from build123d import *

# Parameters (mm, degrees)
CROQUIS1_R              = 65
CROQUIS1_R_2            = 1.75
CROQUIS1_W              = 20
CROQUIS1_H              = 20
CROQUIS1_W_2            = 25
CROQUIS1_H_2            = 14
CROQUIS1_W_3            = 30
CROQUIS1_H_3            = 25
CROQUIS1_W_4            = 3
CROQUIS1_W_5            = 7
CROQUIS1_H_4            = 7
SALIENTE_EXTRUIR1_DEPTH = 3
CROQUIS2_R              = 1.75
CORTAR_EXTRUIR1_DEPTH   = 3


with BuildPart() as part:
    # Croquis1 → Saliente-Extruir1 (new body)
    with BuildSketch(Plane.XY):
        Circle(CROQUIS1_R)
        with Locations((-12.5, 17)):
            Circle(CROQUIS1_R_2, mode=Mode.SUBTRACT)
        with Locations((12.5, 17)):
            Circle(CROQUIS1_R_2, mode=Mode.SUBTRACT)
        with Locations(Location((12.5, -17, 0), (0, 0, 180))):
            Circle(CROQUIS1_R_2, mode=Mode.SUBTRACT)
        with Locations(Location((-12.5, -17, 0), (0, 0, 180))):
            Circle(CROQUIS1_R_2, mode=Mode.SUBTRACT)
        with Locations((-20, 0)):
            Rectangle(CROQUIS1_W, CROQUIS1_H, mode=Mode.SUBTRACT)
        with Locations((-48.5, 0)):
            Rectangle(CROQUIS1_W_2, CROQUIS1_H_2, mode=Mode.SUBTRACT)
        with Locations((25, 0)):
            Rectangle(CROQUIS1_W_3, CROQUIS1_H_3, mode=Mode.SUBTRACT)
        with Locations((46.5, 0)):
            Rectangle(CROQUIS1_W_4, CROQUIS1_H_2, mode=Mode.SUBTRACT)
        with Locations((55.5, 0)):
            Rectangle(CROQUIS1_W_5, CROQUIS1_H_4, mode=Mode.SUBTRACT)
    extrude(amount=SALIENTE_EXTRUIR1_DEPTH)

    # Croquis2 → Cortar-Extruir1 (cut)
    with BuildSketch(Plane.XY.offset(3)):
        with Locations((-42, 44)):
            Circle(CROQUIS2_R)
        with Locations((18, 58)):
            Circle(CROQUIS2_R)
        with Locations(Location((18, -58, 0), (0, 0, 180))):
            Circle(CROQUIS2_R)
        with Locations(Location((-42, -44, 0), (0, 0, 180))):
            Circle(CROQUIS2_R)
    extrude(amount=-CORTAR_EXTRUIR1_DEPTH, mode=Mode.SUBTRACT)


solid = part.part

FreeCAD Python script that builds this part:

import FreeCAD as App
import Part
import Sketcher

V = App.Vector


def add_polygon(sketch, points):
    """Adds a closed chain of lines whose ends are joined by coincident constraints."""
    first, n = sketch.GeometryCount, len(points)
    for a, b in zip(points, points[1:] + points[:1]):
        sketch.addGeometry(Part.LineSegment(App.Vector(*a, 0), App.Vector(*b, 0)), False)
    for i in range(n):
        sketch.addConstraint(Sketcher.Constraint("Coincident", first + i, 2, first + (i + 1) % n, 1))

doc = App.newDocument("Part")
params = doc.addObject("Spreadsheet::Sheet", "Params")
for row, (alias, value) in enumerate([
    ("sketch1_diameter", "130 mm"),
    ("sketch1_diameter2", "3.5 mm"),
    ("sketch1_width", "25 mm"),
    ("sketch1_width2", "20 mm"),
    ("sketch1_width3", "30 mm"),
    ("pad1_length", "3 mm"),
    ("sketch2_diameter", "3.5 mm"),
    ("pocket1_length", "3 mm"),
], start=1):
    params.set(f"A{row}", alias)
    params.set(f"B{row}", "=" + value)
    params.setAlias(f"B{row}", alias)

body = doc.addObject("PartDesign::Body", "Body")

sketch1 = doc.addObject("Sketcher::SketchObject", "Sketch")
body.addObject(sketch1)
sketch1.AttachmentSupport = (doc.XY_Plane, [""])
sketch1.MapMode = "FlatFace"
sketch1.addGeometry(Part.Circle(V(0, 0, 0), V(0, 0, 1), 65), False)
sketch1.addGeometry(Part.Circle(V(-12.5, -17, 0), V(0, 0, 1), 1.8), False)
sketch1.addGeometry(Part.Circle(V(12.5, -17, 0), V(0, 0, 1), 1.8), False)
add_polygon(sketch1, [(-36, -7), (-61, -7), (-61, 7), (-36, 7)])
add_polygon(sketch1, [(-10, -10), (-30, -10), (-30, 10), (-10, 10)])
sketch1.addGeometry(Part.Circle(V(-12.5, 17, 0), V(0, 0, 1), 1.8), False)
add_polygon(sketch1, [(40, -12.5), (10, -12.5), (10, 12.5), (40, 12.5)])
add_polygon(sketch1, [(48, -7), (45, -7), (45, 7), (48, 7)])
add_polygon(sketch1, [(59, -3.5), (52, -3.5), (52, 3.5), (59, 3.5)])
sketch1.addGeometry(Part.Circle(V(12.5, 17, 0), V(0, 0, 1), 1.8), False)
sketch1.addConstraint([
    Sketcher.Constraint("Horizontal", 3),
    Sketcher.Constraint("Vertical", 4),
    Sketcher.Constraint("Horizontal", 5),
    Sketcher.Constraint("Vertical", 6),
    Sketcher.Constraint("Horizontal", 7),
    Sketcher.Constraint("Vertical", 8),
    Sketcher.Constraint("Horizontal", 9),
    Sketcher.Constraint("Vertical", 10),
    Sketcher.Constraint("Horizontal", 12),
    Sketcher.Constraint("Vertical", 13),
    Sketcher.Constraint("Horizontal", 14),
    Sketcher.Constraint("Vertical", 15),
    Sketcher.Constraint("Horizontal", 16),
    Sketcher.Constraint("Vertical", 17),
    Sketcher.Constraint("Horizontal", 18),
    Sketcher.Constraint("Vertical", 19),
    Sketcher.Constraint("Horizontal", 20),
    Sketcher.Constraint("Vertical", 21),
    Sketcher.Constraint("Horizontal", 22),
    Sketcher.Constraint("Vertical", 23),
    Sketcher.Constraint("Coincident", 0, 3, -1, 1),
    Sketcher.Constraint("Equal", 1, 2),
    Sketcher.Constraint("Equal", 2, 11),
    Sketcher.Constraint("Equal", 11, 24),
    Sketcher.Constraint("Symmetric", 2, 3, 11, 3, -1, 1),
    Sketcher.Constraint("Symmetric", 1, 3, 24, 3, -1, 1),
    Sketcher.Constraint("Symmetric", 1, 3, 2, 3, -2),
    Sketcher.Constraint("Horizontal", 6, 2, 16, 2),
    Sketcher.Constraint("Horizontal", 5, 2, 17, 2),
    Sketcher.Constraint("Equal", 9, 8),
    Sketcher.Constraint("Equal", 5, 13),
    Sketcher.Constraint("Equal", 22, 21),
    Sketcher.Constraint("Diameter", 0, 130.0),
    Sketcher.Constraint("Diameter", 1, 3.5),
    Sketcher.Constraint("DistanceX", 3, 2, 3, 1, 25.0),
    Sketcher.Constraint("DistanceX", 7, 2, 7, 1, 20.0),
    Sketcher.Constraint("DistanceX", 12, 2, 12, 1, 30.0),
    Sketcher.Constraint("DistanceX", 16, 2, 16, 1, 3.0),
    Sketcher.Constraint("DistanceX", 20, 2, 20, 1, 7.0),
    Sketcher.Constraint("DistanceY", 4, 1, 4, 2, 14.0),
    Sketcher.Constraint("DistanceY", 1, 3, -1, 1, 17.0),
    Sketcher.Constraint("DistanceX", 3, 2, -1, 1, 61.0),
    Sketcher.Constraint("DistanceY", 3, 2, -1, 1, 7.0),
    Sketcher.Constraint("DistanceX", 7, 2, -1, 1, 30.0),
    Sketcher.Constraint("DistanceY", 7, 2, -1, 1, 10.0),
    Sketcher.Constraint("DistanceX", -1, 1, 12, 2, 10.0),
    Sketcher.Constraint("DistanceX", -1, 1, 16, 2, 45.0),
    Sketcher.Constraint("DistanceX", -1, 1, 20, 2, 52.0),
    Sketcher.Constraint("DistanceX", 1, 3, 2, 3, 25.0),
    Sketcher.Constraint("DistanceY", 15, 2, 20, 2, 9.0),
    Sketcher.Constraint("DistanceY", 12, 2, -1, 1, 12.5),
])
sketch1.setExpression("Constraints[52]", "Params.sketch1_diameter")
sketch1.setExpression("Constraints[53]", "Params.sketch1_diameter2")
sketch1.setExpression("Constraints[54]", "Params.sketch1_width")
sketch1.setExpression("Constraints[55]", "Params.sketch1_width2")
sketch1.setExpression("Constraints[56]", "Params.sketch1_width3")
pad1 = doc.addObject("PartDesign::Pad", "Pad")
body.addObject(pad1)
pad1.Profile = sketch1
pad1.setExpression("Length", "Params.pad1_length")

sketch2 = doc.addObject("Sketcher::SketchObject", "Sketch001")
body.addObject(sketch2)
sketch2.AttachmentSupport = (doc.XY_Plane, [""])
sketch2.MapMode = "FlatFace"
sketch2.AttachmentOffset = App.Placement(V(0, 0, 3), App.Rotation())
sketch2.addGeometry([
    Part.Circle(V(-42, 44, 0), V(0, 0, 1), 1.8),
    Part.Circle(V(18, 58, 0), V(0, 0, 1), 1.8),
    Part.Circle(V(18, -58, 0), V(0, 0, 1), 1.8),
    Part.Circle(V(-42, -44, 0), V(0, 0, 1), 1.8),
], False)
sketch2.addConstraint([
    Sketcher.Constraint("Equal", 0, 1),
    Sketcher.Constraint("Equal", 1, 2),
    Sketcher.Constraint("Equal", 2, 3),
    Sketcher.Constraint("Symmetric", 1, 3, 2, 3, -1),
    Sketcher.Constraint("Symmetric", 0, 3, 3, 3, -1),
    Sketcher.Constraint("Diameter", 0, 3.5),
    Sketcher.Constraint("DistanceX", 0, 3, -1, 1, 42.0),
    Sketcher.Constraint("DistanceY", -1, 1, 0, 3, 44.0),
    Sketcher.Constraint("DistanceX", -1, 1, 1, 3, 18.0),
    Sketcher.Constraint("DistanceY", -1, 1, 1, 3, 58.0),
])
sketch2.setExpression("Constraints[5]", "Params.sketch2_diameter")
pocket1 = doc.addObject("PartDesign::Pocket", "Pocket")
body.addObject(pocket1)
pocket1.Profile = sketch2
pocket1.setExpression("Length", "Params.pocket1_length")

doc.recompute()
